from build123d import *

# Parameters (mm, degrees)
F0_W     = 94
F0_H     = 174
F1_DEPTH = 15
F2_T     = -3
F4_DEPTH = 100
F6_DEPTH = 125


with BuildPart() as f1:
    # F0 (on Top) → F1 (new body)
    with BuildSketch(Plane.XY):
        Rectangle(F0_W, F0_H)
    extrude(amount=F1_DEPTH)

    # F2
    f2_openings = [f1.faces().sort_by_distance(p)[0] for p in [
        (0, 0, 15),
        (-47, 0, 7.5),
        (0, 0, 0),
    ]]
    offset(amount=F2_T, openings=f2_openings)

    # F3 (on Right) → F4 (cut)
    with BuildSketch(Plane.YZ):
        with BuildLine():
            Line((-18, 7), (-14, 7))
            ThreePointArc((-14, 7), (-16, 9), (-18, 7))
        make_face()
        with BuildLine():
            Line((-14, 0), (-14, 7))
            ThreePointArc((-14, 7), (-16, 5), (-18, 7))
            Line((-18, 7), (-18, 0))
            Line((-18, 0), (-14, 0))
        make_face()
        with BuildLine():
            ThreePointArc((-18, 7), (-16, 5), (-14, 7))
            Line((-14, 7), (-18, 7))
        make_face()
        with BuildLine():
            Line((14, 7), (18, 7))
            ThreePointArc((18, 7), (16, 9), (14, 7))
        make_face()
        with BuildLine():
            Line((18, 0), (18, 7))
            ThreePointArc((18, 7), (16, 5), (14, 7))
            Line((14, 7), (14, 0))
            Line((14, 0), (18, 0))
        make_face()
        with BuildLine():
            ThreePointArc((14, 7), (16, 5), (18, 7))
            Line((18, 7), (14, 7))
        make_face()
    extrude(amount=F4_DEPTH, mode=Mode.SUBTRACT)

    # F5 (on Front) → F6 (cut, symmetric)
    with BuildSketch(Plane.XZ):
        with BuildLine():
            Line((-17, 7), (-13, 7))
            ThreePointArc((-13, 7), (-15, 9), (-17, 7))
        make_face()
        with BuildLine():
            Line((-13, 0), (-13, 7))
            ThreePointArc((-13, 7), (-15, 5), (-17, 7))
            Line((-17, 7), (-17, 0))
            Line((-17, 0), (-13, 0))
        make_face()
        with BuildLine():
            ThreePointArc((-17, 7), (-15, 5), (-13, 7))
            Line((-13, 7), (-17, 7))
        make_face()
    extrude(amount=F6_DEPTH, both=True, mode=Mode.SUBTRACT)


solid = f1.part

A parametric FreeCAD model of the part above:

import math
import FreeCAD as App
import Part
import Sketcher
from FreeCAD import Vector


def faces_at(feature, points):
    """Names of the faces that lie closest to the given points."""
    faces = feature.Shape.Faces
    near = lambda p: min(range(len(faces)), key=lambda i: faces[i].distToShape(Part.Vertex(*p))[0])
    return sorted({f"Face{near(p) + 1}" for p in points})


def add_polygon(sketch, points):
    """Adds a closed chain of lines whose ends are joined by coincident constraints."""
    first, n = sketch.GeometryCount, len(points)
    for a, b in zip(points, points[1:] + points[:1]):
        sketch.addGeometry(Part.LineSegment(App.Vector(*a, 0), App.Vector(*b, 0)), False)
    for i in range(n):
        sketch.addConstraint(Sketcher.Constraint("Coincident", first + i, 2, first + (i + 1) % n, 1))

doc = App.newDocument("Part")
params = doc.addObject("Spreadsheet::Sheet", "Params")
for row, (alias, value) in enumerate([
    ("sketch1_width", "94 mm"),
    ("sketch1_height", "174 mm"),
    ("pad1_length", "15 mm"),
    ("thickness_wall", "3 mm"),
    ("sketch2_radius", "2 mm"),
    ("sketch2_height", "7 mm"),
    ("pocket1_length", "100 mm"),
    ("sketch3_radius", "2 mm"),
    ("sketch3_height", "7 mm"),
    ("pocket2_length", "250 mm"),
], start=1):
    params.set(f"A{row}", alias)
    params.set(f"B{row}", "=" + value)
    params.setAlias(f"B{row}", alias)

body = doc.addObject("PartDesign::Body", "Body")

# Sketch on XY plane
sketch1 = body.newObject("Sketcher::SketchObject", "Sketch")
sketch1.AttachmentSupport = (doc.getObject("XY_Plane"), [""])
sketch1.MapMode = "FlatFace"
add_polygon(sketch1, [(-47, 87), (-47, -87), (47, -87), (47, 87)])  # lines 0-3
sketch1.addConstraint([
    Sketcher.Constraint("Vertical", 0),
    Sketcher.Constraint("Horizontal", 1),
    Sketcher.Constraint("Vertical", 2),
    Sketcher.Constraint("Horizontal", 3),
    Sketcher.Constraint("Symmetric", 0, 2, 2, 2, -1, 1),
    Sketcher.Constraint("DistanceX", 1, 1, 1, 2, 94.0),
    Sketcher.Constraint("DistanceY", 0, 2, 0, 1, 174.0),
])
sketch1.setExpression("Constraints[9]", "Params.sketch1_width")
sketch1.setExpression("Constraints[10]", "Params.sketch1_height")
pad1 = body.newObject("PartDesign::Pad", "Pad")
pad1.Profile = sketch1
pad1.setExpression("Length", "Params.pad1_length")
doc.recompute()

thickness = body.newObject("PartDesign::Thickness", "Thickness")
thickness.Base = (pad1, faces_at(pad1, [(0, 0, 15), (-47, 0, 7.5), (0, 0, 0)]))
thickness.setExpression("Value", "Params.thickness_wall")
thickness.Reversed = True
thickness.Join = "Arc"

# Sketch on YZ plane
sketch2 = body.newObject("Sketcher::SketchObject", "Sketch001")
sketch2.AttachmentSupport = (doc.getObject("YZ_Plane"), [""])
sketch2.MapMode = "FlatFace"
sketch2.addGeometry([
    Part.ArcOfCircle(Part.Circle(Vector(-16, 7, 0), Vector(0, 0, 1), 2), math.radians(0), math.radians(180)),  # 0
    Part.LineSegment(Vector(-18, 7, 0), Vector(-18, 0, 0)),  # 1
    Part.LineSegment(Vector(-18, 0, 0), Vector(-14, 0, 0)),  # 2
    Part.LineSegment(Vector(-14, 0, 0), Vector(-14, 7, 0)),  # 3
    Part.ArcOfCircle(Part.Circle(Vector(16, 7, 0), Vector(0, 0, 1), 2), math.radians(0), math.radians(180)),  # 4
    Part.LineSegment(Vector(14, 7, 0), Vector(14, 0, 0)),  # 5
    Part.LineSegment(Vector(14, 0, 0), Vector(18, 0, 0)),  # 6
    Part.LineSegment(Vector(18, 0, 0), Vector(18, 7, 0)),  # 7
], False)
sketch2.addConstraint([
    Sketcher.Constraint("Tangent", 0, 2, 1, 1),
    Sketcher.Constraint("Coincident", 1, 2, 2, 1),
    Sketcher.Constraint("Coincident", 2, 2, 3, 1),
    Sketcher.Constraint("Tangent", 3, 2, 0, 1),
    Sketcher.Constraint("Tangent", 4, 2, 5, 1),
    Sketcher.Constraint("Coincident", 5, 2, 6, 1),
    Sketcher.Constraint("Coincident", 6, 2, 7, 1),
    Sketcher.Constraint("Tangent", 7, 2, 4, 1),
    Sketcher.Constraint("Vertical", 1),
    Sketcher.Constraint("Horizontal", 2),
    Sketcher.Constraint("Vertical", 3),
    Sketcher.Constraint("Vertical", 5),
    Sketcher.Constraint("Horizontal", 6),
    Sketcher.Constraint("Vertical", 7),
    Sketcher.Constraint("Equal", 0, 4),
    Sketcher.Constraint("Symmetric", 2, 2, 5, 2, -1, 1),
    Sketcher.Constraint("PointOnObject", 1, 2, -1),
    Sketcher.Constraint("Horizontal", 0, 3, 4, 3),
    Sketcher.Constraint("Radius", 0, 2.0),
    Sketcher.Constraint("DistanceY", 1, 2, 1, 1, 7.0),
    Sketcher.Constraint("DistanceX", 0, 3, -1, 1, 16.0),
])
sketch2.setExpression("Constraints[18]", "Params.sketch2_radius")
sketch2.setExpression("Constraints[19]", "Params.sketch2_height")
pocket1 = body.newObject("PartDesign::Pocket", "Pocket")
pocket1.Profile = sketch2
pocket1.setExpression("Length", "Params.pocket1_length")
pocket1.Reversed = True

# Sketch on XZ plane
sketch3 = body.newObject("Sketcher::SketchObject", "Sketch002")
sketch3.AttachmentSupport = (doc.getObject("XZ_Plane"), [""])
sketch3.MapMode = "FlatFace"
sketch3.addGeometry([
    Part.ArcOfCircle(Part.Circle(Vector(-15, 7, 0), Vector(0, 0, 1), 2), math.radians(0), math.radians(180)),
    Part.LineSegment(Vector(-17, 7, 0), Vector(-17, 0, 0)),
    Part.LineSegment(Vector(-17, 0, 0), Vector(-13, 0, 0)),
    Part.LineSegment(Vector(-13, 0, 0), Vector(-13, 7, 0)),
], False)
sketch3.addConstraint([
    Sketcher.Constraint("Tangent", 0, 2, 1, 1),
    Sketcher.Constraint("Coincident", 1, 2, 2, 1),
    Sketcher.Constraint("Coincident", 2, 2, 3, 1),
    Sketcher.Constraint("Tangent", 3, 2, 0, 1),
    Sketcher.Constraint("Vertical", 1),
    Sketcher.Constraint("Horizontal", 2),
    Sketcher.Constraint("Vertical", 3),
    Sketcher.Constraint("PointOnObject", 1, 2, -1),
    Sketcher.Constraint("Radius", 0, 2.0),
    Sketcher.Constraint("DistanceY", 1, 2, 1, 1, 7.0),
    Sketcher.Constraint("DistanceX", 0, 3, -1, 1, 15.0),
])
sketch3.setExpression("Constraints[8]", "Params.sketch3_radius")
sketch3.setExpression("Constraints[9]", "Params.sketch3_height")
pocket2 = body.newObject("PartDesign::Pocket", "Pocket001")
pocket2.Profile = sketch3
pocket2.setExpression("Length", "Params.pocket2_length")
pocket2.Midplane = True

doc.recompute()
